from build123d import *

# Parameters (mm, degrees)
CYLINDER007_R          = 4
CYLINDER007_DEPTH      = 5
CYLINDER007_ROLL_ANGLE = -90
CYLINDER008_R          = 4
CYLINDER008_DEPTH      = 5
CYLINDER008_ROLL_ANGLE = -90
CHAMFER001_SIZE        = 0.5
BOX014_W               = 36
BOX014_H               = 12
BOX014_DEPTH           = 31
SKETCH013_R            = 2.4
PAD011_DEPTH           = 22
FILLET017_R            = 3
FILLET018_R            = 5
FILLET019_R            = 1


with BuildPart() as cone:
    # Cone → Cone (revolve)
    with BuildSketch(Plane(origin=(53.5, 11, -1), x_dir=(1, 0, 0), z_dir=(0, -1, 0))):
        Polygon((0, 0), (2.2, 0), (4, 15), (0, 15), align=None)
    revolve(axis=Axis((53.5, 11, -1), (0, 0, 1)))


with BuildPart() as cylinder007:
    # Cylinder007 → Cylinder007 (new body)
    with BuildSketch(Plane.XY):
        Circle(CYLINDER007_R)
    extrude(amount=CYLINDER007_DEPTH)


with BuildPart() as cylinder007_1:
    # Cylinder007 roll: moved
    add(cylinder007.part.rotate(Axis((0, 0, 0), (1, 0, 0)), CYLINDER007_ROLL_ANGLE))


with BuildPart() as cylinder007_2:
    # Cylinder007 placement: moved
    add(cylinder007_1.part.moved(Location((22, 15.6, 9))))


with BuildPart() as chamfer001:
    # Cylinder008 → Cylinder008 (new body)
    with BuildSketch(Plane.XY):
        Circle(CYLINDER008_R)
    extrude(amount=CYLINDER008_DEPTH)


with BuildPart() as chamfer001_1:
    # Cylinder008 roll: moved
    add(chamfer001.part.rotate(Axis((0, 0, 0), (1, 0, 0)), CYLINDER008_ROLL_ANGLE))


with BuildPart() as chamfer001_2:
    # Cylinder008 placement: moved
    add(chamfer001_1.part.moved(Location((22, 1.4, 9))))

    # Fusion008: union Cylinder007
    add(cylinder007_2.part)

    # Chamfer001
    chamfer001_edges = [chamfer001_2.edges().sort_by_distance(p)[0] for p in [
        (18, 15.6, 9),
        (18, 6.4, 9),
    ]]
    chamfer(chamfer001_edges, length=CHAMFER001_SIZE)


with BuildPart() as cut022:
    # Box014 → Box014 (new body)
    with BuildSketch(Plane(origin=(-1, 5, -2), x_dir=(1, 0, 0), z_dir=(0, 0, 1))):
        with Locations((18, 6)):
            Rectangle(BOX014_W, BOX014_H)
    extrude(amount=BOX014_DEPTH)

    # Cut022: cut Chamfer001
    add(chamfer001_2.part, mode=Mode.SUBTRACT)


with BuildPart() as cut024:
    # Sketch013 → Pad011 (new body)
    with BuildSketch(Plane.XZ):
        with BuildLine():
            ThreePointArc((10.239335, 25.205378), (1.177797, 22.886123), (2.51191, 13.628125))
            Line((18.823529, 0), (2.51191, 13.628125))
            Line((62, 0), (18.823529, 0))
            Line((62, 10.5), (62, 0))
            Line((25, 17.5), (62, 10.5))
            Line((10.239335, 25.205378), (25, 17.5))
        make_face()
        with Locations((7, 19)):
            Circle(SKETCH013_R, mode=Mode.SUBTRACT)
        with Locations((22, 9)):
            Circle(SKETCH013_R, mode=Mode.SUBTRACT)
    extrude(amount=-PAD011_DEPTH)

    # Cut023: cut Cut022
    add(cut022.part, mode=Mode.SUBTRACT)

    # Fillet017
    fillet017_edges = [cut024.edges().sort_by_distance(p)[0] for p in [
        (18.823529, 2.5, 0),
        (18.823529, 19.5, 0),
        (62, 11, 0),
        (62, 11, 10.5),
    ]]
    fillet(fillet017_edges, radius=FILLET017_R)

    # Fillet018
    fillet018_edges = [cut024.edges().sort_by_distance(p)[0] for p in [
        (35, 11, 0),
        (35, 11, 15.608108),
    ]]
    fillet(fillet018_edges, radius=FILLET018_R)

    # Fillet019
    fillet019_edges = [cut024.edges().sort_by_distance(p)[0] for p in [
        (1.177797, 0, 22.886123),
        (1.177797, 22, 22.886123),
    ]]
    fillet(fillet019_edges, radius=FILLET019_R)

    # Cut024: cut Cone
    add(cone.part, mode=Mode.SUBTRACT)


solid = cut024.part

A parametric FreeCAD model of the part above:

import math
import FreeCAD as App
import Part
import Sketcher
Q = App.Units.Quantity


def edges_at(feature, points):
    """Names of the edges that pass closest to the given points."""
    edges = feature.Shape.Edges
    near = lambda p: min(range(len(edges)), key=lambda i: edges[i].distToShape(Part.Vertex(*p))[0])
    return sorted({f"Edge{near(p) + 1}" for p in points})

doc = App.newDocument("Part")
body = doc.addObject("PartDesign::Body", "Body")

sketch1 = doc.addObject("Sketcher::SketchObject", "Sketch")
body.addObject(sketch1)
sketch1.AttachmentSupport = (doc.XZ_Plane, [""])
sketch1.MapMode = "FlatFace"
sketch1.AttachmentOffset = App.Placement(App.Vector(0, 0, -11), App.Rotation())
sketch1.addGeometry([
    Part.LineSegment(App.Vector(53.5, -1, 0), App.Vector(55.7, -1, 0)),
    Part.LineSegment(App.Vector(55.7, -1, 0), App.Vector(57.5, 14, 0)),
    Part.LineSegment(App.Vector(57.5, 14, 0), App.Vector(53.5, 14, 0)),
    Part.LineSegment(App.Vector(53.5, 14, 0), App.Vector(53.5, -1, 0)),
], False)
sketch1.addGeometry(Part.LineSegment(App.Vector(53.5, -1, 0), App.Vector(53.5, 14, 0)), True)
sketch1.addConstraint([
    Sketcher.Constraint("Coincident", 0, 2, 1, 1),
    Sketcher.Constraint("Coincident", 1, 2, 2, 1),
    Sketcher.Constraint("Coincident", 2, 2, 3, 1),
    Sketcher.Constraint("Coincident", 3, 2, 0, 1),
    Sketcher.Constraint("Horizontal", 0),
    Sketcher.Constraint("Horizontal", 2),
    Sketcher.Constraint("Vertical", 3),
    Sketcher.Constraint("Vertical", 4),
    Sketcher.Constraint("Coincident", 4, 1, 3, 2),
    Sketcher.Constraint("Horizontal", 1, 2, 4, 2),
    Sketcher.Constraint("DistanceX", 2, 2, 2, 1, Q("4 mm")),
    Sketcher.Constraint("DistanceY", 3, 2, 3, 1, Q("15 mm")),
    Sketcher.Constraint("DistanceX", 0, 1, 0, 2, Q("2.2 mm")),
    Sketcher.Constraint("DistanceY", 0, 2, -1, 1, Q("1 mm")),
    Sketcher.Constraint("DistanceX", -1, 1, 0, 2, Q("55.7 mm")),
])
revolution = doc.addObject("PartDesign::Revolution", "Revolution")
body.addObject(revolution)
revolution.Profile = sketch1
revolution.ReferenceAxis = (sketch1, ["Axis0"])
revolution.Angle = 360
body2 = doc.addObject("PartDesign::Body", "Body001")

sketch2 = doc.addObject("Sketcher::SketchObject", "Sketch001")
body2.addObject(sketch2)
sketch2.AttachmentSupport = (doc.getObject("XY_Plane001"), [""])
sketch2.MapMode = "FlatFace"
sketch2.addGeometry(Part.Circle(App.Vector(0, 0, 0), App.Vector(0, 0, 1), 4), False)
sketch2.addConstraint([
    Sketcher.Constraint("Coincident", 0, 3, -1, 1),
    Sketcher.Constraint("Diameter", 0, Q("8 mm")),
])
pad1 = doc.addObject("PartDesign::Pad", "Pad")
body2.addObject(pad1)
pad1.Profile = sketch2
pad1.Length = 5
body3 = doc.addObject("PartDesign::Body", "Body002")
doc.recompute()

body2.Placement = App.Placement(App.Vector(0, 0, 0), App.Rotation(App.Vector(1, 0, 0), 270))
boolean = doc.addObject("PartDesign::Boolean", "Boolean")
body3.addObject(boolean)
boolean.Type = "Fuse"
boolean.addObjects([body2])
body4 = doc.addObject("PartDesign::Body", "Body003")
doc.recompute()

body3.Placement = App.Placement(App.Vector(22, 15.6, 9), App.Rotation(App.Vector(0, 0, 1), 0))
boolean2 = doc.addObject("PartDesign::Boolean", "Boolean001")
body4.addObject(boolean2)
boolean2.Type = "Fuse"
boolean2.addObjects([body3])
body5 = doc.addObject("PartDesign::Body", "Body004")

sketch3 = doc.addObject("Sketcher::SketchObject", "Sketch002")
body5.addObject(sketch3)
sketch3.AttachmentSupport = (doc.getObject("XY_Plane004"), [""])
sketch3.MapMode = "FlatFace"
sketch3.addGeometry(Part.Circle(App.Vector(0, 0, 0), App.Vector(0, 0, 1), 4), False)
sketch3.addConstraint([
    Sketcher.Constraint("Coincident", 0, 3, -1, 1),
    Sketcher.Constraint("Diameter", 0, Q("8 mm")),
])
pad2 = doc.addObject("PartDesign::Pad", "Pad001")
body5.addObject(pad2)
pad2.Profile = sketch3
pad2.Length = 5
body6 = doc.addObject("PartDesign::Body", "Body005")
doc.recompute()

body5.Placement = App.Placement(App.Vector(0, 0, 0), App.Rotation(App.Vector(1, 0, 0), 270))
boolean3 = doc.addObject("PartDesign::Boolean", "Boolean002")
body6.addObject(boolean3)
boolean3.Type = "Fuse"
boolean3.addObjects([body5])
body7 = doc.addObject("PartDesign::Body", "Body006")
body7.AllowCompound = True
doc.recompute()

body6.Placement = App.Placement(App.Vector(22, 1.4, 9), App.Rotation(App.Vector(0, 0, 1), 0))
boolean4 = doc.addObject("PartDesign::Boolean", "Boolean003")
body7.addObject(boolean4)
boolean4.Type = "Fuse"
boolean4.addObjects([body6])
doc.recompute()

boolean5 = doc.addObject("PartDesign::Boolean", "Boolean004")
body7.addObject(boolean5)
boolean5.Type = "Fuse"
boolean5.addObjects([body4])
doc.recompute()

chamfer = doc.addObject("PartDesign::Chamfer", "Chamfer")
body7.addObject(chamfer)
chamfer.Base = (boolean5, edges_at(boolean5, [(18, 15.6, 9), (18, 6.4, 9)]))
chamfer.Size = 0.5
body8 = doc.addObject("PartDesign::Body", "Body007")

sketch4 = doc.addObject("Sketcher::SketchObject", "Sketch003")
body8.addObject(sketch4)
sketch4.AttachmentSupport = (doc.getObject("XY_Plane007"), [""])
sketch4.MapMode = "FlatFace"
sketch4.AttachmentOffset = App.Placement(App.Vector(0, 0, -2), App.Rotation())
sketch4.addGeometry([
    Part.LineSegment(App.Vector(-1, 17, 0), App.Vector(-1, 5, 0)),
    Part.LineSegment(App.Vector(-1, 5, 0), App.Vector(35, 5, 0)),
    Part.LineSegment(App.Vector(35, 5, 0), App.Vector(35, 17, 0)),
    Part.LineSegment(App.Vector(35, 17, 0), App.Vector(-1, 17, 0)),
], False)
sketch4.addConstraint([
    Sketcher.Constraint("Coincident", 0, 2, 1, 1),
    Sketcher.Constraint("Coincident", 1, 2, 2, 1),
    Sketcher.Constraint("Coincident", 2, 2, 3, 1),
    Sketcher.Constraint("Coincident", 3, 2, 0, 1),
    Sketcher.Constraint("Vertical", 0),
    Sketcher.Constraint("Horizontal", 1),
    Sketcher.Constraint("Vertical", 2),
    Sketcher.Constraint("Horizontal", 3),
    Sketcher.Constraint("DistanceX", 1, 1, 1, 2, Q("36 mm")),
    Sketcher.Constraint("DistanceY", 0, 2, 0, 1, Q("12 mm")),
    Sketcher.Constraint("DistanceX", 0, 2, -1, 1, Q("1 mm")),
    Sketcher.Constraint("DistanceY", -1, 1, 0, 2, Q("5 mm")),
])
pad3 = doc.addObject("PartDesign::Pad", "Pad002")
body8.addObject(pad3)
pad3.Profile = sketch4
pad3.Length = 31
doc.recompute()

boolean6 = doc.addObject("PartDesign::Boolean", "Boolean005")
body8.addObject(boolean6)
boolean6.Type = "Cut"
boolean6.addObjects([body7])
body9 = doc.addObject("PartDesign::Body", "Body008")

sketch5 = doc.addObject("Sketcher::SketchObject", "Sketch004")
body9.addObject(sketch5)
sketch5.AttachmentSupport = (doc.getObject("XZ_Plane008"), [""])
sketch5.MapMode = "FlatFace"
sketch5.addGeometry([
    Part.ArcOfCircle(Part.Circle(App.Vector(7, 19, 0), App.Vector(0, 0, 1), 7), math.radians(62), math.radians(230)),
    Part.LineSegment(App.Vector(2.5, 13.6, 0), App.Vector(18.8, 0, 0)),
    Part.LineSegment(App.Vector(18.8, 0, 0), App.Vector(62, 0, 0)),
    Part.LineSegment(App.Vector(62, 0, 0), App.Vector(62, 10.5, 0)),
    Part.LineSegment(App.Vector(62, 10.5, 0), App.Vector(25, 17.5, 0)),
    Part.LineSegment(App.Vector(25, 17.5, 0), App.Vector(10.2, 25.2, 0)),
    Part.Circle(App.Vector(22, 9, 0), App.Vector(0, 0, 1), 2.4),
    Part.Circle(App.Vector(7, 19, 0), App.Vector(0, 0, 1), 2.4),
], False)
sketch5.addConstraint([
    Sketcher.Constraint("Coincident", 0, 2, 1, 1),
    Sketcher.Constraint("Coincident", 1, 2, 2, 1),
    Sketcher.Constraint("Coincident", 2, 2, 3, 1),
    Sketcher.Constraint("Coincident", 3, 2, 4, 1),
    Sketcher.Constraint("Coincident", 4, 2, 5, 1),
    Sketcher.Constraint("Tangent", 5, 2, 0, 1),
    Sketcher.Constraint("Horizontal", 2),
    Sketcher.Constraint("Vertical", 3),
    Sketcher.Constraint("Coincident", 7, 3, 0, 3),
    Sketcher.Constraint("Equal", 6, 7),
    Sketcher.Constraint("PointOnObject", 1, 2, -1),
    Sketcher.Constraint("Radius", 0, Q("7 mm")),
    Sketcher.Constraint("Diameter", 6, Q("4.8 mm")),
    Sketcher.Constraint("DistanceY", 3, 1, 3, 2, Q("10.5 mm")),
    Sketcher.Constraint("DistanceX", -1, 1, 0, 3, Q("7 mm")),
    Sketcher.Constraint("DistanceY", -1, 1, 0, 3, Q("19 mm")),
    Sketcher.Constraint("DistanceX", -1, 1, 6, 3, Q("22 mm")),
    Sketcher.Constraint("DistanceY", -1, 1, 6, 3, Q("9 mm")),
    Sketcher.Constraint("DistanceX", -1, 1, 2, 2, Q("62 mm")),
    Sketcher.Constraint("DistanceX", -1, 1, 4, 2, Q("25 mm")),
    Sketcher.Constraint("DistanceY", -1, 1, 4, 2, Q("17.5 mm")),
    Sketcher.Constraint("DistanceX", 2, 1, 2, 2, Q("43.176471 mm")),
    Sketcher.Constraint("DistanceX", -1, 1, 0, 2, Q("2.51191 mm")),
])
pad4 = doc.addObject("PartDesign::Pad", "Pad003")
body9.addObject(pad4)
pad4.Profile = sketch5
pad4.Length = 22
pad4.Reversed = True
doc.recompute()

boolean7 = doc.addObject("PartDesign::Boolean", "Boolean006")
body9.addObject(boolean7)
boolean7.Type = "Cut"
boolean7.addObjects([body8])
doc.recompute()

fillet = doc.addObject("PartDesign::Fillet", "Fillet")
body9.addObject(fillet)
fillet.Base = (boolean7, edges_at(boolean7, [
    (18.824, 2.5, 0),
    (18.824, 19.5, 0),
    (62, 11, 0),
    (62, 11, 10.5),
]))
fillet.Radius = 3
doc.recompute()

fillet2 = doc.addObject("PartDesign::Fillet", "Fillet001")
body9.addObject(fillet2)
fillet2.Base = (fillet, edges_at(fillet, [(35, 11, 0), (35, 11, 15.608)]))
fillet2.Radius = 5
doc.recompute()

fillet3 = doc.addObject("PartDesign::Fillet", "Fillet002")
body9.addObject(fillet3)
fillet3.Base = (fillet2, edges_at(fillet2, [(1.178, 0, 22.886), (1.178, 22, 22.886)]))
fillet3.Radius = 1
doc.recompute()

boolean8 = doc.addObject("PartDesign::Boolean", "Boolean007")
body9.addObject(boolean8)
boolean8.Type = "Cut"
boolean8.addObjects([body])

doc.recompute()
